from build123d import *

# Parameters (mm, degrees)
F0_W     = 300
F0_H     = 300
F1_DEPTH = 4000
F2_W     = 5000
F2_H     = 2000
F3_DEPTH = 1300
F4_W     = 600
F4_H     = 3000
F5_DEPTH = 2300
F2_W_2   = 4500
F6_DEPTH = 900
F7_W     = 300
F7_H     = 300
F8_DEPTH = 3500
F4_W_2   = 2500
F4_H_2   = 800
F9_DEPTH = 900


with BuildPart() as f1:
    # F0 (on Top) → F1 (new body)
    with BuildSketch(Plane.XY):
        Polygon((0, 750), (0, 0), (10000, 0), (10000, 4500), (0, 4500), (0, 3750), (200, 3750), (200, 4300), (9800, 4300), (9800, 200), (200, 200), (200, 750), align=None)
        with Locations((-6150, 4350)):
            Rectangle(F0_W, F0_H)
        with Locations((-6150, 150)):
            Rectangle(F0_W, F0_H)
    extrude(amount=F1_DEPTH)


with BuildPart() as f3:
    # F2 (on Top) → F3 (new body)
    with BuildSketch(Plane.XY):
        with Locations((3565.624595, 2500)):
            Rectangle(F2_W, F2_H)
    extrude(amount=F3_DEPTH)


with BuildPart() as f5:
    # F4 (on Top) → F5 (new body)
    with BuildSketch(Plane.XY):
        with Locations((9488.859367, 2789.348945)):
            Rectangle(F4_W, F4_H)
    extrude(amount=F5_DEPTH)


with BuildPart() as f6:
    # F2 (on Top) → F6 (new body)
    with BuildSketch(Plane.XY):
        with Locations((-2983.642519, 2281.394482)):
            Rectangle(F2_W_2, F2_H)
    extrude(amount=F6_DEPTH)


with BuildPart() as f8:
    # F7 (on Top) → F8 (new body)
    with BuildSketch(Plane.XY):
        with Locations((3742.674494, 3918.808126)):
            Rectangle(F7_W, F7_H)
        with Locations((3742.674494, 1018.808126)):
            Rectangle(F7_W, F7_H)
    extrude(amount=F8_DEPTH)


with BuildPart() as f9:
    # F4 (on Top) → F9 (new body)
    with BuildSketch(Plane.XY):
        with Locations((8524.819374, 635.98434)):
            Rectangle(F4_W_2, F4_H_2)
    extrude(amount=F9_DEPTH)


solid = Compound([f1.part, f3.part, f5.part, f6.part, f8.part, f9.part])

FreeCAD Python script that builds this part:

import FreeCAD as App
import Part
import Sketcher
from FreeCAD import Vector
Q = App.Units.Quantity


def add_polygon(sketch, points):
    """Adds a closed chain of lines whose ends are joined by coincident constraints."""
    first, n = sketch.GeometryCount, len(points)
    for a, b in zip(points, points[1:] + points[:1]):
        sketch.addGeometry(Part.LineSegment(App.Vector(*a, 0), App.Vector(*b, 0)), False)
    for i in range(n):
        sketch.addConstraint(Sketcher.Constraint("Coincident", first + i, 2, first + (i + 1) % n, 1))

doc = App.newDocument("Part")
body = doc.addObject("PartDesign::Body", "Body")
body.AllowCompound = True

# Sketch on XY plane
sketch1 = doc.addObject("Sketcher::SketchObject", "Sketch")
body.addObject(sketch1)
sketch1.AttachmentSupport = (doc.XY_Plane, [""])
sketch1.MapMode = "FlatFace"
add_polygon(sketch1, [(0, 750), (0, 0), (10000, 0), (10000, 4500), (0, 4500), (0, 3750), (200, 3750), (200, 4300), (9800, 4300), (9800, 200), (200, 200), (200, 750)])  # lines 0-11
add_polygon(sketch1, [(-6300, 4500), (-6300, 4200), (-6000, 4200), (-6000, 4500)])  # lines 12-15
add_polygon(sketch1, [(-6300, 300), (-6300, 0), (-6000, 0), (-6000, 300)])  # lines 16-19
sketch1.addConstraint([
    Sketcher.Constraint("Vertical", 0),
    Sketcher.Constraint("Horizontal", 1),
    Sketcher.Constraint("Vertical", 2),
    Sketcher.Constraint("Horizontal", 3),
    Sketcher.Constraint("Vertical", 4),
    Sketcher.Constraint("Horizontal", 5),
    Sketcher.Constraint("Vertical", 6),
    Sketcher.Constraint("Horizontal", 7),
    Sketcher.Constraint("Vertical", 8),
    Sketcher.Constraint("Horizontal", 9),
    Sketcher.Constraint("Vertical", 10),
    Sketcher.Constraint("Horizontal", 11),
    Sketcher.Constraint("Vertical", 12),
    Sketcher.Constraint("Horizontal", 13),
    Sketcher.Constraint("Vertical", 14),
    Sketcher.Constraint("Horizontal", 15),
    Sketcher.Constraint("Vertical", 16),
    Sketcher.Constraint("Horizontal", 17),
    Sketcher.Constraint("Vertical", 18),
    Sketcher.Constraint("Horizontal", 19),
    Sketcher.Constraint("Coincident", 0, 2, -1, 1),
    Sketcher.Constraint("PointOnObject", 3, 2, -2),
    Sketcher.Constraint("PointOnObject", 16, 2, -1),
    Sketcher.Constraint("Horizontal", 3, 2, 14, 2),
    Sketcher.Constraint("Vertical", 6, 2, 9, 2),
    Sketcher.Constraint("Vertical", 15, 2, 16, 2),
    Sketcher.Constraint("Vertical", 14, 2, 17, 2),
    Sketcher.Constraint("Equal", 0, 4),
    Sketcher.Constraint("Equal", 6, 10),
    Sketcher.Constraint("Equal", 19, 12),
    Sketcher.Constraint("Equal", 14, 16),
    Sketcher.Constraint("DistanceX", 1, 1, 1, 2, Q("10000 mm")),
    Sketcher.Constraint("DistanceX", 5, 1, 5, 2, Q("200 mm")),
    Sketcher.Constraint("DistanceX", 7, 1, 7, 2, Q("9600 mm")),
    Sketcher.Constraint("DistanceX", 13, 1, 13, 2, Q("300 mm")),
    Sketcher.Constraint("DistanceY", 0, 2, 0, 1, Q("750 mm")),
    Sketcher.Constraint("DistanceY", 2, 1, 2, 2, Q("4500 mm")),
    Sketcher.Constraint("DistanceY", 6, 1, 6, 2, Q("550 mm")),
    Sketcher.Constraint("DistanceX", 12, 2, -1, 1, Q("6300 mm")),
])
pad1 = doc.addObject("PartDesign::Pad", "Pad")
body.addObject(pad1)
pad1.Profile = sketch1
pad1.Length = 4000
body2 = doc.addObject("PartDesign::Body", "Body001")

# Sketch on XY plane
sketch2 = doc.addObject("Sketcher::SketchObject", "Sketch001")
body2.addObject(sketch2)
sketch2.AttachmentSupport = (doc.getObject("XY_Plane001"), [""])
sketch2.MapMode = "FlatFace"
add_polygon(sketch2, [(1065.624595, 3500), (1065.624595, 1500), (6065.624595, 1500), (6065.624595, 3500)])  # lines 0-3
sketch2.addConstraint([
    Sketcher.Constraint("Vertical", 0),
    Sketcher.Constraint("Horizontal", 1),
    Sketcher.Constraint("Vertical", 2),
    Sketcher.Constraint("Horizontal", 3),
    Sketcher.Constraint("DistanceX", 1, 1, 1, 2, Q("5000 mm")),
    Sketcher.Constraint("DistanceY", 0, 2, 0, 1, Q("2000 mm")),
    Sketcher.Constraint("DistanceY", -1, 1, 0, 2, Q("1500 mm")),
    Sketcher.Constraint("DistanceX", -1, 1, 0, 2, Q("1065.624595 mm")),
])
pad2 = doc.addObject("PartDesign::Pad", "Pad001")
body2.addObject(pad2)
pad2.Profile = sketch2
pad2.Length = 1300
body3 = doc.addObject("PartDesign::Body", "Body002")

# Sketch on XY plane
sketch3 = doc.addObject("Sketcher::SketchObject", "Sketch002")
body3.addObject(sketch3)
sketch3.AttachmentSupport = (doc.getObject("XY_Plane002"), [""])
sketch3.MapMode = "FlatFace"
add_polygon(sketch3, [(9188.859367, 4289.348945), (9188.859367, 1289.348945), (9788.859367, 1289.348945), (9788.859367, 4289.348945)])  # lines 0-3
sketch3.addConstraint([
    Sketcher.Constraint("Vertical", 0),
    Sketcher.Constraint("Horizontal", 1),
    Sketcher.Constraint("Vertical", 2),
    Sketcher.Constraint("Horizontal", 3),
    Sketcher.Constraint("DistanceX", 1, 1, 1, 2, Q("600 mm")),
    Sketcher.Constraint("DistanceY", 0, 2, 0, 1, Q("3000 mm")),
    Sketcher.Constraint("DistanceX", -1, 1, 0, 2, Q("9188.859367 mm")),
    Sketcher.Constraint("DistanceY", -1, 1, 0, 2, Q("1289.348945 mm")),
])
pad3 = doc.addObject("PartDesign::Pad", "Pad002")
body3.addObject(pad3)
pad3.Profile = sketch3
pad3.Length = 2300
body4 = doc.addObject("PartDesign::Body", "Body003")

# Sketch on XY plane
sketch4 = doc.addObject("Sketcher::SketchObject", "Sketch003")
body4.addObject(sketch4)
sketch4.AttachmentSupport = (doc.getObject("XY_Plane003"), [""])
sketch4.MapMode = "FlatFace"
add_polygon(sketch4, [(-5233.642519, 3281.394482), (-5233.642519, 1281.394482), (-733.642519, 1281.394482), (-733.642519, 3281.394482)])  # lines 0-3
sketch4.addConstraint([
    Sketcher.Constraint("Vertical", 0),
    Sketcher.Constraint("Horizontal", 1),
    Sketcher.Constraint("Vertical", 2),
    Sketcher.Constraint("Horizontal", 3),
    Sketcher.Constraint("DistanceX", 1, 1, 1, 2, Q("4500 mm")),
    Sketcher.Constraint("DistanceY", 0, 2, 0, 1, Q("2000 mm")),
    Sketcher.Constraint("DistanceX", 0, 2, -1, 1, Q("5233.642519 mm")),
    Sketcher.Constraint("DistanceY", -1, 1, 0, 2, Q("1281.394482 mm")),
])
pad4 = doc.addObject("PartDesign::Pad", "Pad003")
body4.addObject(pad4)
pad4.Profile = sketch4
pad4.Length = 900
body5 = doc.addObject("PartDesign::Body", "Body004")
body5.AllowCompound = True

# Sketch on XY plane
sketch5 = doc.addObject("Sketcher::SketchObject", "Sketch004")
body5.addObject(sketch5)
sketch5.AttachmentSupport = (doc.getObject("XY_Plane004"), [""])
sketch5.MapMode = "FlatFace"
add_polygon(sketch5, [(3592.674494, 4068.808126), (3592.674494, 3768.808126), (3892.674494, 3768.808126), (3892.674494, 4068.808126)])  # lines 0-3
add_polygon(sketch5, [(3592.674494, 1168.808126), (3592.674494, 868.808126), (3892.674494, 868.808126), (3892.674494, 1168.808126)])  # lines 4-7
sketch5.addConstraint([
    Sketcher.Constraint("Vertical", 0),
    Sketcher.Constraint("Horizontal", 1),
    Sketcher.Constraint("Vertical", 2),
    Sketcher.Constraint("Horizontal", 3),
    Sketcher.Constraint("Vertical", 4),
    Sketcher.Constraint("Horizontal", 5),
    Sketcher.Constraint("Vertical", 6),
    Sketcher.Constraint("Horizontal", 7),
    Sketcher.Constraint("Vertical", 3, 2, 4, 2),
    Sketcher.Constraint("Vertical", 2, 2, 5, 2),
    Sketcher.Constraint("Equal", 7, 0),
    Sketcher.Constraint("Equal", 2, 4),
    Sketcher.Constraint("DistanceX", 1, 1, 1, 2, Q("300 mm")),
    Sketcher.Constraint("DistanceY", 4, 2, 0, 2, Q("2900 mm")),
    Sketcher.Constraint("DistanceX", -1, 1, 0, 2, Q("3592.674494 mm")),
    Sketcher.Constraint("DistanceY", -1, 1, 0, 2, Q("3768.808126 mm")),
])
pad5 = doc.addObject("PartDesign::Pad", "Pad004")
body5.addObject(pad5)
pad5.Profile = sketch5
pad5.Length = 3500
body6 = doc.addObject("PartDesign::Body", "Body005")

# Sketch on XY plane
sketch6 = doc.addObject("Sketcher::SketchObject", "Sketch005")
body6.addObject(sketch6)
sketch6.AttachmentSupport = (doc.getObject("XY_Plane005"), [""])
sketch6.MapMode = "FlatFace"
add_polygon(sketch6, [(7274.819374, 1035.98434), (7274.819374, 235.98434), (9774.819374, 235.98434), (9774.819374, 1035.98434)])  # lines 0-3
sketch6.addConstraint([
    Sketcher.Constraint("Vertical", 0),
    Sketcher.Constraint("Horizontal", 1),
    Sketcher.Constraint("Vertical", 2),
    Sketcher.Constraint("Horizontal", 3),
    Sketcher.Constraint("DistanceX", 1, 1, 1, 2, Q("2500 mm")),
    Sketcher.Constraint("DistanceY", 0, 2, 0, 1, Q("800 mm")),
    Sketcher.Constraint("DistanceY", -1, 1, 0, 2, Q("235.98434 mm")),
    Sketcher.Constraint("DistanceX", -1, 1, 0, 2, Q("7274.819374 mm")),
])
pad6 = doc.addObject("PartDesign::Pad", "Pad005")
body6.addObject(pad6)
pad6.Profile = sketch6
pad6.Length = 900

doc.recompute()
